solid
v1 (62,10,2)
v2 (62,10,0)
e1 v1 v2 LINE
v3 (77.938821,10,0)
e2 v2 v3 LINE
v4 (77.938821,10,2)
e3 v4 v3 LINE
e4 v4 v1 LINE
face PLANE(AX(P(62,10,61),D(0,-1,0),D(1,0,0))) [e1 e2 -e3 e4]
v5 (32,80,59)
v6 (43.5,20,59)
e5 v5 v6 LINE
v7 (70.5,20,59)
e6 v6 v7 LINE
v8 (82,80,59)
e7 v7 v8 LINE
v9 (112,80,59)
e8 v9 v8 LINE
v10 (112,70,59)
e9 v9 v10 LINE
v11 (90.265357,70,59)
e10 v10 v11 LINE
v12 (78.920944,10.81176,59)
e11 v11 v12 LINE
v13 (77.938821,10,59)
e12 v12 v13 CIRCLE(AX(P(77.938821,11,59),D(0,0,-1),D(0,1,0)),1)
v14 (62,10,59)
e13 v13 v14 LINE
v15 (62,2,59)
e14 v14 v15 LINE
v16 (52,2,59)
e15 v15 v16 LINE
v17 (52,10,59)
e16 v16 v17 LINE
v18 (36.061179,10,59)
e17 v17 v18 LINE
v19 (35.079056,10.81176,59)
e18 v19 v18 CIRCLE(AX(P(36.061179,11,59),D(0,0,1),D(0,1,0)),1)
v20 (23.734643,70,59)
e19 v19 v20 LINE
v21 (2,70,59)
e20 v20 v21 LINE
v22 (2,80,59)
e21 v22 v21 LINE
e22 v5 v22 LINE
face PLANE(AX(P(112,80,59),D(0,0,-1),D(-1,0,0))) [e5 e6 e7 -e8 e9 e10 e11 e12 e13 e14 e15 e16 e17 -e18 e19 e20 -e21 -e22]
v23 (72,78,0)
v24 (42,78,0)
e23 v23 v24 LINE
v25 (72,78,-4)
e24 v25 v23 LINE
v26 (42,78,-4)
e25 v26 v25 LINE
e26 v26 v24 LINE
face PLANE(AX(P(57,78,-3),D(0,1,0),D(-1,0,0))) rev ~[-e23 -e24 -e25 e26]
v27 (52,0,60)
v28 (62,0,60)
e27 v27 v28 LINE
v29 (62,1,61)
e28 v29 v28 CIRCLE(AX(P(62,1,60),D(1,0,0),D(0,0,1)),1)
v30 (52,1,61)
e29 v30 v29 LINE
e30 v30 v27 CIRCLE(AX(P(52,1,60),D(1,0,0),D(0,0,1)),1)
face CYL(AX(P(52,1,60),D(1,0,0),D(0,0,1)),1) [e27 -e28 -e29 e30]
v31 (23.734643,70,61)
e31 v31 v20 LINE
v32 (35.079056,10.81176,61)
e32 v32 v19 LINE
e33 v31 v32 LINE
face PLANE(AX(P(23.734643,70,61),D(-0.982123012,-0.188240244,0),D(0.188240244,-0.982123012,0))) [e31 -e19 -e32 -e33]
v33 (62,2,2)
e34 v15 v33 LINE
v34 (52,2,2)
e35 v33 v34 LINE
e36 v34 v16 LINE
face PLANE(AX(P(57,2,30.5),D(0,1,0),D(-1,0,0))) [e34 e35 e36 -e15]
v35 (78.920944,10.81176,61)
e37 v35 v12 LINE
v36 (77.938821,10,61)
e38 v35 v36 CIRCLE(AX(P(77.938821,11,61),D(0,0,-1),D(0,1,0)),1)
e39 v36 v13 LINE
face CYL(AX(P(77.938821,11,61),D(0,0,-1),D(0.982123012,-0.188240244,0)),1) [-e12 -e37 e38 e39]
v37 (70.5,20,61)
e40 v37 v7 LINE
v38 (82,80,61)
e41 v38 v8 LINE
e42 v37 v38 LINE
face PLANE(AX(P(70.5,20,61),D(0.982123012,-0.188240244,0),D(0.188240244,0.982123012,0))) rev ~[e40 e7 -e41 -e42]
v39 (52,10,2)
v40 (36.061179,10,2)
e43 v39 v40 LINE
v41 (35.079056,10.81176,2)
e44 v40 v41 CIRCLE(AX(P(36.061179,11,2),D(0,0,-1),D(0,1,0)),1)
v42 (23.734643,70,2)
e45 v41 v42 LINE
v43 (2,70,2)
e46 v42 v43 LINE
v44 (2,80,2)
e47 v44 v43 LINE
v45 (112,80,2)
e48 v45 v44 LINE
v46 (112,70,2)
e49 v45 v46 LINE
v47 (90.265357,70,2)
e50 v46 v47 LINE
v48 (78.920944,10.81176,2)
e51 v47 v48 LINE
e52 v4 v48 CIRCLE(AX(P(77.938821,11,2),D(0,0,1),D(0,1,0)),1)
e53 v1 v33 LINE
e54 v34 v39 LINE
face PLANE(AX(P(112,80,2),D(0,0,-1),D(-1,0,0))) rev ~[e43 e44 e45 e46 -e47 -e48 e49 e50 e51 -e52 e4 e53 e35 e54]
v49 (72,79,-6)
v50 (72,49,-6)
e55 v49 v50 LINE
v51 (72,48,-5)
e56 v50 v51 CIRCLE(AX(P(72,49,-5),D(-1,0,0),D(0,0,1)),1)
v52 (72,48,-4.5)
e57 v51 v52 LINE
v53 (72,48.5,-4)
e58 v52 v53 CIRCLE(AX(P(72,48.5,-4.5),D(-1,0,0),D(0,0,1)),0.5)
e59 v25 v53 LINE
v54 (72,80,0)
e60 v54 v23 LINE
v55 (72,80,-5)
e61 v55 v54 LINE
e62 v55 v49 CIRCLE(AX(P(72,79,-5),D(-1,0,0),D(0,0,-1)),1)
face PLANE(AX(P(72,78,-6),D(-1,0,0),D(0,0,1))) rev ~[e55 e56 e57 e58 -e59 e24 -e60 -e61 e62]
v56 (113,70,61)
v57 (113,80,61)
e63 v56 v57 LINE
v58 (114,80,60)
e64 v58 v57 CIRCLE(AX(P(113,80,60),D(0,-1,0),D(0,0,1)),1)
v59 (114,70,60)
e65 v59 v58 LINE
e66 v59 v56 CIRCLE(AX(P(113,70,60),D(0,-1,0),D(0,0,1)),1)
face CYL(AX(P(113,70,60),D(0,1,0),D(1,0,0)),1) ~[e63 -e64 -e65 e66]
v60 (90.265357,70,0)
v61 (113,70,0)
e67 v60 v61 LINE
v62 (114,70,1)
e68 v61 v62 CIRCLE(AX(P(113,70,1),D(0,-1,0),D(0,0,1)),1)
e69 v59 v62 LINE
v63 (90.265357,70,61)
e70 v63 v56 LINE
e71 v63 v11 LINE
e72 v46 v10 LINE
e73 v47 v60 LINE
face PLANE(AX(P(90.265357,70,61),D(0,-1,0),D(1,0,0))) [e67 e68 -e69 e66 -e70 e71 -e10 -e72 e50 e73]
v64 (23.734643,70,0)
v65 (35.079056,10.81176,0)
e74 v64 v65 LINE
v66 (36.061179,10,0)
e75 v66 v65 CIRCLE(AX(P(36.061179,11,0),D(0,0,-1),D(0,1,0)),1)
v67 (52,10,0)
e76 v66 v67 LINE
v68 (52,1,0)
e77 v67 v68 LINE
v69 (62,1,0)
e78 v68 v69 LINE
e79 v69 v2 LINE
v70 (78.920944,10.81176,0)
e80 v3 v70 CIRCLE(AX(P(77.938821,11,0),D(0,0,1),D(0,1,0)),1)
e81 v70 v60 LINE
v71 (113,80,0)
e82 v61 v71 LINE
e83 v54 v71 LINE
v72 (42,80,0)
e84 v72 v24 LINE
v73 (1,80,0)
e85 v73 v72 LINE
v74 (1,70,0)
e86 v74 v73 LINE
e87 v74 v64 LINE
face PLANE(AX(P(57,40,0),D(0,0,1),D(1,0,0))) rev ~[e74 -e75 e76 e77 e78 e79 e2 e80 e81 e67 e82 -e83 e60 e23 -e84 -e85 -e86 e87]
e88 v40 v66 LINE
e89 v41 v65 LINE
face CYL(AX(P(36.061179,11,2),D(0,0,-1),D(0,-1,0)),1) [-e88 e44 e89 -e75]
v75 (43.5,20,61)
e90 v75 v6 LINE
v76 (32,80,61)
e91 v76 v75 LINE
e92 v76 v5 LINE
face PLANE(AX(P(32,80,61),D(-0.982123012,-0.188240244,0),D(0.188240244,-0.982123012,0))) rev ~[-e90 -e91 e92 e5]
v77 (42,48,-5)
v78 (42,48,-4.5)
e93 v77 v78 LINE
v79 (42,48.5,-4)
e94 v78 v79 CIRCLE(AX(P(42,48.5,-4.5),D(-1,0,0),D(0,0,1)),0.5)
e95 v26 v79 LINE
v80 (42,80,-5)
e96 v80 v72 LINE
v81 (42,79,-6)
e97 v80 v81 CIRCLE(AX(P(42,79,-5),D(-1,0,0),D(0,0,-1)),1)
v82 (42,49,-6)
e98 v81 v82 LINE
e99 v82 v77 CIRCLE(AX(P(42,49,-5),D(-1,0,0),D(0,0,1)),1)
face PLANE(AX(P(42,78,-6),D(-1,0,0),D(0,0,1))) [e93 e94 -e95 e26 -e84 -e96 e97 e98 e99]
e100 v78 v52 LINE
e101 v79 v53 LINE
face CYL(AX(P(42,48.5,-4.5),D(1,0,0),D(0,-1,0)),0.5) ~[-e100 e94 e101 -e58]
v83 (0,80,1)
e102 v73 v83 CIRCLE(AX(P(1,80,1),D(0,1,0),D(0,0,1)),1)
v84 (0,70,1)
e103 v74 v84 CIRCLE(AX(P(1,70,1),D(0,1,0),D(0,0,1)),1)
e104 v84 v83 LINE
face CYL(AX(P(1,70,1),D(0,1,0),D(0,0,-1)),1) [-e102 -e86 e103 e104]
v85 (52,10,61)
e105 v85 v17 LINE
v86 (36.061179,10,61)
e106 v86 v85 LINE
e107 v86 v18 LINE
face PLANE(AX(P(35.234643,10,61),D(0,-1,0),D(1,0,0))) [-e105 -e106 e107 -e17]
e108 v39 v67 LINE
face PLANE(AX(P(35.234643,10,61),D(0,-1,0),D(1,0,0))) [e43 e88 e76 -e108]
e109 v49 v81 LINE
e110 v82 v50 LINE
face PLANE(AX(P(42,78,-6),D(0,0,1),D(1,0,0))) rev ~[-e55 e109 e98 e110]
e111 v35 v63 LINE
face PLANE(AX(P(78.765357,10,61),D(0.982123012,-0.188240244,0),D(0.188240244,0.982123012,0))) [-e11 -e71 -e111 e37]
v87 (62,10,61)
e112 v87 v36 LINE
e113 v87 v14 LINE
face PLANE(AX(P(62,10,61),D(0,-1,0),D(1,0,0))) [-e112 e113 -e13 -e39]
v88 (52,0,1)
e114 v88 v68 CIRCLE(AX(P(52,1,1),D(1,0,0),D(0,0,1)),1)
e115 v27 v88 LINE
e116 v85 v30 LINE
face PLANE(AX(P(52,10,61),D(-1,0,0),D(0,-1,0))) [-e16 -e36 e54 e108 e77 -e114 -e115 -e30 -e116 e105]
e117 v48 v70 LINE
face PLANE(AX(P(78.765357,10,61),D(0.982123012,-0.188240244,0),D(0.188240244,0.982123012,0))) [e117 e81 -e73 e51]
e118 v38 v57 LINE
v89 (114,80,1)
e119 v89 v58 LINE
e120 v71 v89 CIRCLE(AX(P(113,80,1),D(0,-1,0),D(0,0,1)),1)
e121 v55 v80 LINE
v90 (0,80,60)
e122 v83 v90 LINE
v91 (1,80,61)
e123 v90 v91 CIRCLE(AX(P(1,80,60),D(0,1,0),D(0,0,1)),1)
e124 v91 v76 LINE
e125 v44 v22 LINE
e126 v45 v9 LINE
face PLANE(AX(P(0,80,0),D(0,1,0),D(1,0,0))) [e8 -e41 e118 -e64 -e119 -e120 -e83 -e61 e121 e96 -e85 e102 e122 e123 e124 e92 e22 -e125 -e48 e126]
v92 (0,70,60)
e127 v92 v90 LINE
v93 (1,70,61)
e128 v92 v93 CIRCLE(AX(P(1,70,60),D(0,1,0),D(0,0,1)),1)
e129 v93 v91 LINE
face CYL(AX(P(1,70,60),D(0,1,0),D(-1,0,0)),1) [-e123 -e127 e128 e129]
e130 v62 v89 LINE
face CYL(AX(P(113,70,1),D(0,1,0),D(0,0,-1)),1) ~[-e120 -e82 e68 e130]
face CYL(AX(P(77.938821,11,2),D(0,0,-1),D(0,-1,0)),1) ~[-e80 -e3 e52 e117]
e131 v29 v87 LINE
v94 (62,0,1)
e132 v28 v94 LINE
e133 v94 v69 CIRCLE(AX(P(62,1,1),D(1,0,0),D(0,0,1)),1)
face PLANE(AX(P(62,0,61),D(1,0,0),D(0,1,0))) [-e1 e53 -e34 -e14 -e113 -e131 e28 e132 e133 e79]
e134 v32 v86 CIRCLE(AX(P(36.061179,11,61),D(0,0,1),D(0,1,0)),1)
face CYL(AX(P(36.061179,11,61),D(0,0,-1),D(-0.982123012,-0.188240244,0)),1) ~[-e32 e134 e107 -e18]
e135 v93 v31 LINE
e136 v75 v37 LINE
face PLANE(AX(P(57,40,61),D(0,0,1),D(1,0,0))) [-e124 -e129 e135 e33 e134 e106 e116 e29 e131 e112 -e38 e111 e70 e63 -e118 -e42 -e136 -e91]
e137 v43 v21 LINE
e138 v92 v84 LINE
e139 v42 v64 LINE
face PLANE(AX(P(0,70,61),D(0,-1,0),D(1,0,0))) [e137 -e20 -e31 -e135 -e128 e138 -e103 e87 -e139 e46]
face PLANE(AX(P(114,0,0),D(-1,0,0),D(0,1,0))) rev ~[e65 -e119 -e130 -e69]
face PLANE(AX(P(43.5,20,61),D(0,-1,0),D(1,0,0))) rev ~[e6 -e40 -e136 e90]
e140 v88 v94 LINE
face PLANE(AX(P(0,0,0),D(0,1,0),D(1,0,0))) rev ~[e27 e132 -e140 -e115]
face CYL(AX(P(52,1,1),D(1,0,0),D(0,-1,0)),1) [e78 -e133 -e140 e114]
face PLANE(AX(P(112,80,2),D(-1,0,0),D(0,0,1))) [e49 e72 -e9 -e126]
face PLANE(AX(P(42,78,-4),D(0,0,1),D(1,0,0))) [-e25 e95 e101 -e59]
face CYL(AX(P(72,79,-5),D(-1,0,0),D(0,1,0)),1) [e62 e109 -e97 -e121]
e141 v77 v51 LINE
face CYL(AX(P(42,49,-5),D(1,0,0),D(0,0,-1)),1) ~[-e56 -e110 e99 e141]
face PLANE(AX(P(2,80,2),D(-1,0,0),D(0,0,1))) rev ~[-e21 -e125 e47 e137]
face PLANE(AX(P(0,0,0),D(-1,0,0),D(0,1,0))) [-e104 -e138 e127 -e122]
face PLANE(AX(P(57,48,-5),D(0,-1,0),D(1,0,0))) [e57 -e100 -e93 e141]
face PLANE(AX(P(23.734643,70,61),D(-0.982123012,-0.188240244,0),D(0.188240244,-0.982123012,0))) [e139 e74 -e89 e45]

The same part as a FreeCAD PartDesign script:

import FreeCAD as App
import Part
import Sketcher
from FreeCAD import Vector


def edges_at(feature, points):
    """Names of the edges that pass closest to the given points."""
    edges = feature.Shape.Edges
    near = lambda p: min(range(len(edges)), key=lambda i: edges[i].distToShape(Part.Vertex(*p))[0])
    return sorted({f"Edge{near(p) + 1}" for p in points})


def add_polygon(sketch, points):
    """Adds a closed chain of lines whose ends are joined by coincident constraints."""
    first, n = sketch.GeometryCount, len(points)
    for a, b in zip(points, points[1:] + points[:1]):
        sketch.addGeometry(Part.LineSegment(App.Vector(*a, 0), App.Vector(*b, 0)), False)
    for i in range(n):
        sketch.addConstraint(Sketcher.Constraint("Coincident", first + i, 2, first + (i + 1) % n, 1))

doc = App.newDocument("Part")
body = doc.addObject("PartDesign::Body", "Body")

sketch1 = body.newObject("Sketcher::SketchObject", "Sketch")
sketch1.AttachmentSupport = (doc.getObject("XY_Plane"), [""])
sketch1.MapMode = "FlatFace"
add_polygon(sketch1, [(0, 80), (0, 0), (114, 0), (114, 80)])
sketch1.addConstraint(Sketcher.Constraint("Vertical", 0))
sketch1.addConstraint(Sketcher.Constraint("Horizontal", 1))
sketch1.addConstraint(Sketcher.Constraint("Vertical", 2))
sketch1.addConstraint(Sketcher.Constraint("Horizontal", 3))
sketch1.addConstraint(Sketcher.Constraint("Coincident", 0, 2, -1, 1))
sketch1.addConstraint(Sketcher.Constraint("DistanceX", 1, 1, 1, 2, 114.0))
sketch1.addConstraint(Sketcher.Constraint("DistanceY", 0, 2, 0, 1, 80.0))
pad1 = body.newObject("PartDesign::Pad", "Pad")
pad1.Profile = sketch1
pad1.Length = 61

sketch2 = body.newObject("Sketcher::SketchObject", "Sketch001")
sketch2.AttachmentSupport = (doc.getObject("XZ_Plane"), [""])
sketch2.MapMode = "FlatFace"
sketch2.AttachmentOffset = App.Placement(Vector(0, 0, -80), App.Rotation())
add_polygon(sketch2, [(112, 59), (112, 2), (2, 2), (2, 59)])
sketch2.addConstraint(Sketcher.Constraint("Vertical", 0))
sketch2.addConstraint(Sketcher.Constraint("Horizontal", 1))
sketch2.addConstraint(Sketcher.Constraint("Vertical", 2))
sketch2.addConstraint(Sketcher.Constraint("Horizontal", 3))
sketch2.addConstraint(Sketcher.Constraint("DistanceX", 1, 2, 1, 1, 110.0))
sketch2.addConstraint(Sketcher.Constraint("DistanceY", 0, 2, 0, 1, 57.0))
sketch2.addConstraint(Sketcher.Constraint("DistanceX", -1, 1, 0, 2, 112.0))
sketch2.addConstraint(Sketcher.Constraint("DistanceY", -1, 1, 0, 2, 2.0))
pocket1 = body.newObject("PartDesign::Pocket", "Pocket")
pocket1.Profile = sketch2
pocket1.Length = 78
pocket1.Reversed = True

sketch3 = body.newObject("Sketcher::SketchObject", "Sketch002")
sketch3.AttachmentSupport = (doc.getObject("XY_Plane"), [""])
sketch3.MapMode = "FlatFace"
sketch3.AttachmentOffset = App.Placement(Vector(0, 0, 61), App.Rotation())
add_polygon(sketch3, [(32, 80), (43.5, 20), (70.5, 20), (82, 80)])
sketch3.addConstraint(Sketcher.Constraint("Horizontal", 1))
sketch3.addConstraint(Sketcher.Constraint("Horizontal", 3))
sketch3.addConstraint(Sketcher.Constraint("Equal", 0, 2))
sketch3.addConstraint(Sketcher.Constraint("DistanceX", 1, 1, 1, 2, 27.0))
sketch3.addConstraint(Sketcher.Constraint("DistanceX", 3, 2, 3, 1, 50.0))
sketch3.addConstraint(Sketcher.Constraint("DistanceY", -1, 1, 0, 2, 20.0))
sketch3.addConstraint(Sketcher.Constraint("DistanceX", -1, 1, 2, 2, 82.0))
sketch3.addConstraint(Sketcher.Constraint("DistanceY", -1, 1, 2, 2, 80.0))
pocket2 = body.newObject("PartDesign::Pocket", "Pocket001")
pocket2.Profile = sketch3
pocket2.Length = 2

sketch4 = body.newObject("Sketcher::SketchObject", "Sketch003")
sketch4.AttachmentSupport = (doc.getObject("XY_Plane"), [""])
sketch4.MapMode = "FlatFace"
sketch4.AttachmentOffset = App.Placement(Vector(0, 0, 61), App.Rotation())
add_polygon(sketch4, [(23.734643, 70), (0, 70), (0, 0), (52, 0), (52, 10), (35.234643, 10)])
add_polygon(sketch4, [(90.265357, 70), (78.765357, 10), (62, 10), (62, 0), (114, 0), (114, 70)])
sketch4.addConstraint(Sketcher.Constraint("Horizontal", 0))
sketch4.addConstraint(Sketcher.Constraint("Vertical", 1))
sketch4.addConstraint(Sketcher.Constraint("Horizontal", 2))
sketch4.addConstraint(Sketcher.Constraint("Vertical", 3))
sketch4.addConstraint(Sketcher.Constraint("Horizontal", 4))
sketch4.addConstraint(Sketcher.Constraint("Horizontal", 7))
sketch4.addConstraint(Sketcher.Constraint("Vertical", 8))
sketch4.addConstraint(Sketcher.Constraint("Horizontal", 9))
sketch4.addConstraint(Sketcher.Constraint("Vertical", 10))
sketch4.addConstraint(Sketcher.Constraint("Horizontal", 11))
sketch4.addConstraint(Sketcher.Constraint("Coincident", 1, 2, -1, 1))
sketch4.addConstraint(Sketcher.Constraint("PointOnObject", 8, 2, -1))
sketch4.addConstraint(Sketcher.Constraint("Horizontal", 4, 2, 6, 2))
sketch4.addConstraint(Sketcher.Constraint("Horizontal", 5, 2, 10, 2))
sketch4.addConstraint(Sketcher.Constraint("Equal", 4, 7))
sketch4.addConstraint(Sketcher.Constraint("Equal", 2, 9))
sketch4.addConstraint(Sketcher.Constraint("Equal", 0, 11))
sketch4.addConstraint(Sketcher.Constraint("DistanceX", 2, 1, 2, 2, 52.0))
sketch4.addConstraint(Sketcher.Constraint("DistanceY", 1, 2, 1, 1, 70.0))
sketch4.addConstraint(Sketcher.Constraint("DistanceY", 3, 1, 3, 2, 10.0))
sketch4.addConstraint(Sketcher.Constraint("DistanceX", -1, 1, 7, 2, 62.0))
sketch4.addConstraint(Sketcher.Constraint("DistanceX", 5, 2, 4, 2, 11.5))
sketch4.addConstraint(Sketcher.Constraint("DistanceX", 0, 2, 0, 1, 23.734643))
pocket3 = body.newObject("PartDesign::Pocket", "Pocket002")
pocket3.Profile = sketch4
pocket3.Length = 90

sketch5 = body.newObject("Sketcher::SketchObject", "Sketch004")
sketch5.AttachmentSupport = (doc.getObject("XZ_Plane"), [""])
sketch5.MapMode = "FlatFace"
sketch5.AttachmentOffset = App.Placement(Vector(0, 0, -80), App.Rotation())
add_polygon(sketch5, [(72, 0), (72, -6), (42, -6), (42, 0)])
sketch5.addConstraint(Sketcher.Constraint("Vertical", 0))
sketch5.addConstraint(Sketcher.Constraint("Horizontal", 1))
sketch5.addConstraint(Sketcher.Constraint("Vertical", 2))
sketch5.addConstraint(Sketcher.Constraint("Horizontal", 3))
sketch5.addConstraint(Sketcher.Constraint("PointOnObject", 2, 2, -1))
sketch5.addConstraint(Sketcher.Constraint("DistanceX", 1, 2, 1, 1, 30.0))
sketch5.addConstraint(Sketcher.Constraint("DistanceY", 0, 2, 0, 1, 6.0))
sketch5.addConstraint(Sketcher.Constraint("DistanceX", -1, 1, 0, 2, 72.0))
pad2 = body.newObject("PartDesign::Pad", "Pad001")
pad2.Profile = sketch5
pad2.Length = 2

sketch6 = body.newObject("Sketcher::SketchObject", "Sketch005")
sketch6.AttachmentSupport = (doc.getObject("XZ_Plane"), [""])
sketch6.MapMode = "FlatFace"
sketch6.AttachmentOffset = App.Placement(Vector(0, 0, -78), App.Rotation())
add_polygon(sketch6, [(42, -4), (42, -6), (72, -6), (72, -4)])
sketch6.addConstraint(Sketcher.Constraint("Vertical", 0))
sketch6.addConstraint(Sketcher.Constraint("Horizontal", 1))
sketch6.addConstraint(Sketcher.Constraint("Vertical", 2))
sketch6.addConstraint(Sketcher.Constraint("Horizontal", 3))
sketch6.addConstraint(Sketcher.Constraint("DistanceX", 1, 1, 1, 2, 30.0))
sketch6.addConstraint(Sketcher.Constraint("DistanceY", 0, 2, 0, 1, 2.0))
sketch6.addConstraint(Sketcher.Constraint("DistanceX", -1, 1, 0, 2, 42.0))
sketch6.addConstraint(Sketcher.Constraint("DistanceY", 0, 2, -1, 1, 6.0))
pad3 = body.newObject("PartDesign::Pad", "Pad002")
pad3.Profile = sketch6
pad3.Length = 30
doc.recompute()

fillet = body.newObject("PartDesign::Fillet", "Fillet")
fillet.Base = (pad3, edges_at(pad3, [(78.765, 10, 1)]))
fillet.Radius = 1
doc.recompute()

fillet2 = body.newObject("PartDesign::Fillet", "Fillet001")
fillet2.Base = (fillet, edges_at(fillet, [(114, 75, 0)]))
fillet2.Radius = 1
doc.recompute()

fillet3 = body.newObject("PartDesign::Fillet", "Fillet002")
fillet3.Base = (fillet2, edges_at(fillet2, [(114, 75, 61)]))
fillet3.Radius = 1
doc.recompute()

fillet4 = body.newObject("PartDesign::Fillet", "Fillet003")
fillet4.Base = (fillet3, edges_at(fillet3, [(57, 80, -6)]))
fillet4.Radius = 1
doc.recompute()

fillet5 = body.newObject("PartDesign::Fillet", "Fillet004")
fillet5.Base = (fillet4, edges_at(fillet4, [(57, 48, -6)]))
fillet5.Radius = 1
doc.recompute()

fillet6 = body.newObject("PartDesign::Fillet", "Fillet005")
fillet6.Base = (fillet5, edges_at(fillet5, [(57, 48, -4)]))
fillet6.Radius = 0.5
doc.recompute()

fillet7 = body.newObject("PartDesign::Fillet", "Fillet006")
fillet7.Base = (fillet6, edges_at(fillet6, [(0, 75, 0)]))
fillet7.Radius = 1
doc.recompute()

fillet8 = body.newObject("PartDesign::Fillet", "Fillet007")
fillet8.Base = (fillet7, edges_at(fillet7, [(0, 75, 61)]))
fillet8.Radius = 1
doc.recompute()

fillet9 = body.newObject("PartDesign::Fillet", "Fillet008")
fillet9.Base = (fillet8, edges_at(fillet8, [(78.765, 10, 60), (35.235, 10, 60)]))
fillet9.Radius = 1
doc.recompute()

fillet10 = body.newObject("PartDesign::Fillet", "Fillet009")
fillet10.Base = (fillet9, edges_at(fillet9, [(57, 0, 61), (57, 0, 0)]))
fillet10.Radius = 1
doc.recompute()

fillet11 = body.newObject("PartDesign::Fillet", "Fillet010")
fillet11.Base = (fillet10, edges_at(fillet10, [(35.235, 10, 1)]))
fillet11.Radius = 1

doc.recompute()
